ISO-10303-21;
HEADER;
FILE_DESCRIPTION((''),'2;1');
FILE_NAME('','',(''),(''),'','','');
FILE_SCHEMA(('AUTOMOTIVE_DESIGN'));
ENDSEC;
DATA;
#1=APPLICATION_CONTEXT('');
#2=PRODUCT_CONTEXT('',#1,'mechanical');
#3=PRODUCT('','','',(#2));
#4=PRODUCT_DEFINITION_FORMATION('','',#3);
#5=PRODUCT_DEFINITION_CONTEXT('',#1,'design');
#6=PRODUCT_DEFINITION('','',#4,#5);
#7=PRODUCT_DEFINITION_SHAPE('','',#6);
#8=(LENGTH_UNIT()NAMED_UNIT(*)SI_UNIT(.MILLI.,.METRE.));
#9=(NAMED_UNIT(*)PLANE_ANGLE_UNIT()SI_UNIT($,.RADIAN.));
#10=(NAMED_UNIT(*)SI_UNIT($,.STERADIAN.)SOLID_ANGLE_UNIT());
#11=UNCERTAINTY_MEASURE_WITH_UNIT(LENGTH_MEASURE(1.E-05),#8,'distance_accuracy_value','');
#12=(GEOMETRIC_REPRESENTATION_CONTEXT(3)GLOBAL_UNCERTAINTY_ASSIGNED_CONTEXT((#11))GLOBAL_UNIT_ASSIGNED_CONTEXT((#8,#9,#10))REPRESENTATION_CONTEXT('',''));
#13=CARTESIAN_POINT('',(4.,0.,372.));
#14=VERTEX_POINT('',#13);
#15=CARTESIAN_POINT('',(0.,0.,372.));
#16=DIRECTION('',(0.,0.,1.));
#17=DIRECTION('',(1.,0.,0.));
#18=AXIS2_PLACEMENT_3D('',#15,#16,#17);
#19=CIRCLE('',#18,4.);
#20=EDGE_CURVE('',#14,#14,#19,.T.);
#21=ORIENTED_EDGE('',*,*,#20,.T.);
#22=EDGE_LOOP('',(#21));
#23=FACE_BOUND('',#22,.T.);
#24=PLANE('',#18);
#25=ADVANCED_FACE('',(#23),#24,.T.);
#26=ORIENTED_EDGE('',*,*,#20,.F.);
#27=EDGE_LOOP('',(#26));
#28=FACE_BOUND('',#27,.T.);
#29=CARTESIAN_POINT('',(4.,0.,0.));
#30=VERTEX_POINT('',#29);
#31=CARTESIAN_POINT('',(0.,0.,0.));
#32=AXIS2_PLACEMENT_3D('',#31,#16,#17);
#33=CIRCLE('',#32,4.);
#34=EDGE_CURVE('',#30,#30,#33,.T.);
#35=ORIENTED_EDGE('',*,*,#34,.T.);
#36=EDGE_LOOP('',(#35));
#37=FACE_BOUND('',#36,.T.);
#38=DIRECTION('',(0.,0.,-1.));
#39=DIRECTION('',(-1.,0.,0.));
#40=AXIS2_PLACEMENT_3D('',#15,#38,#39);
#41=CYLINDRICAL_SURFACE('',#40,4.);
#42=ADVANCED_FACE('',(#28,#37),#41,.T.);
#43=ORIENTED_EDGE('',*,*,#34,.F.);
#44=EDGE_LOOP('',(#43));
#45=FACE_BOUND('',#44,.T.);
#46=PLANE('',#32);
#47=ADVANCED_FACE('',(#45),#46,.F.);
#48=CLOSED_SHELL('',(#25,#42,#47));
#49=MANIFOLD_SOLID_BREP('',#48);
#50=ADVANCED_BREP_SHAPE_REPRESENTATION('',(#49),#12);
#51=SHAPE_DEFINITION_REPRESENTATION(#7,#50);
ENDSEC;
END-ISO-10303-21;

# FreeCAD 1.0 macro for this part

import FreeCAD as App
import Part
import Sketcher

V = App.Vector

doc = App.newDocument("Part")
body = doc.addObject("PartDesign::Body", "Body")

sketch1 = body.newObject("Sketcher::SketchObject", "Sketch")
sketch1.AttachmentSupport = (doc.getObject("XY_Plane"), [""])
sketch1.MapMode = "FlatFace"
sketch1.addGeometry(Part.Circle(V(0, 0, 0), V(0, 0, 1), 4), False)
sketch1.addConstraint([
    Sketcher.Constraint("Coincident", 0, 3, -1, 1),
    Sketcher.Constraint("Diameter", 0, 8.0),
])
pad1 = body.newObject("PartDesign::Pad", "Pad")
pad1.Profile = sketch1
pad1.Length = 372

doc.recompute()
